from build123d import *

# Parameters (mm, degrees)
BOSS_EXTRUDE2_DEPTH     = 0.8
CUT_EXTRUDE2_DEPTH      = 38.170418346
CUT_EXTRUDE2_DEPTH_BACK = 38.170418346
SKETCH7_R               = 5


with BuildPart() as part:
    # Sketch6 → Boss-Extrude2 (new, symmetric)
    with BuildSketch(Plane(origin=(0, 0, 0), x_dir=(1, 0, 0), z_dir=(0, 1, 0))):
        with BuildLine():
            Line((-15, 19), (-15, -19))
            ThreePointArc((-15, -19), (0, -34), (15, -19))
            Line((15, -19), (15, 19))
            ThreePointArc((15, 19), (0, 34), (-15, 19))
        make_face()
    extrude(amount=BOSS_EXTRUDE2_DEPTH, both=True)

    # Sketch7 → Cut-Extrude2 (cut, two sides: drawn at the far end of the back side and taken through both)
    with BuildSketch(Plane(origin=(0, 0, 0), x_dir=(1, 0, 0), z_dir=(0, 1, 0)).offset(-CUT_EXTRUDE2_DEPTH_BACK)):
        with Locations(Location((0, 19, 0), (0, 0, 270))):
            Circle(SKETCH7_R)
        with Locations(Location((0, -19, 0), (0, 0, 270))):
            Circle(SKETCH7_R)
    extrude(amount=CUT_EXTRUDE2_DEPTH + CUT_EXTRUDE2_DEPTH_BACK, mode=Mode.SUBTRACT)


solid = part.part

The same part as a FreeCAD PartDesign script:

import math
import FreeCAD as App
import Part
import Sketcher
from FreeCAD import Vector

doc = App.newDocument("Part")
body = doc.addObject("PartDesign::Body", "Body")

sketch1 = body.newObject("Sketcher::SketchObject", "Sketch")
sketch1.AttachmentSupport = (doc.getObject("XZ_Plane"), [""])
sketch1.MapMode = "FlatFace"
sketch1.addGeometry([
    Part.LineSegment(Vector(-15, -19, 0), Vector(-15, 19, 0)),
    Part.ArcOfCircle(Part.Circle(Vector(0, 19, 0), Vector(0, 0, 1), 15), math.radians(0), math.radians(180)),
    Part.LineSegment(Vector(15, 19, 0), Vector(15, -19, 0)),
    Part.ArcOfCircle(Part.Circle(Vector(0, -19, 0), Vector(0, 0, 1), 15), math.radians(180), math.radians(360)),
], False)
sketch1.addConstraint([
    Sketcher.Constraint("Tangent", 0, 2, 1, 2),
    Sketcher.Constraint("Tangent", 1, 1, 2, 1),
    Sketcher.Constraint("Tangent", 2, 2, 3, 2),
    Sketcher.Constraint("Tangent", 3, 1, 0, 1),
    Sketcher.Constraint("Vertical", 0),
    Sketcher.Constraint("Vertical", 2),
    Sketcher.Constraint("Symmetric", 1, 3, 3, 3, -1, 1),
    Sketcher.Constraint("Radius", 1, 15.0),
    Sketcher.Constraint("DistanceY", 0, 1, 0, 2, 38.0),
])
pad1 = body.newObject("PartDesign::Pad", "Pad")
pad1.Profile = sketch1
pad1.Length = 1.6
pad1.Midplane = True

sketch2 = body.newObject("Sketcher::SketchObject", "Sketch001")
sketch2.AttachmentSupport = (doc.getObject("XZ_Plane"), [""])
sketch2.MapMode = "FlatFace"
sketch2.addGeometry([
    Part.Circle(Vector(0, -19, 0), Vector(0, 0, 1), 5),
    Part.Circle(Vector(0, 19, 0), Vector(0, 0, 1), 5),
], False)
sketch2.addConstraint([
    Sketcher.Constraint("Equal", 0, 1),
    Sketcher.Constraint("Symmetric", 0, 3, 1, 3, -1, 1),
    Sketcher.Constraint("PointOnObject", 0, 3, -2),
    Sketcher.Constraint("Diameter", 0, 10.0),
    Sketcher.Constraint("DistanceY", 0, 3, -1, 1, 19.0),
])
pocket1 = body.newObject("PartDesign::Pocket", "Pocket")
pocket1.Profile = sketch2
pocket1.Type = "ThroughAll"
pocket1.Midplane = True

doc.recompute()
